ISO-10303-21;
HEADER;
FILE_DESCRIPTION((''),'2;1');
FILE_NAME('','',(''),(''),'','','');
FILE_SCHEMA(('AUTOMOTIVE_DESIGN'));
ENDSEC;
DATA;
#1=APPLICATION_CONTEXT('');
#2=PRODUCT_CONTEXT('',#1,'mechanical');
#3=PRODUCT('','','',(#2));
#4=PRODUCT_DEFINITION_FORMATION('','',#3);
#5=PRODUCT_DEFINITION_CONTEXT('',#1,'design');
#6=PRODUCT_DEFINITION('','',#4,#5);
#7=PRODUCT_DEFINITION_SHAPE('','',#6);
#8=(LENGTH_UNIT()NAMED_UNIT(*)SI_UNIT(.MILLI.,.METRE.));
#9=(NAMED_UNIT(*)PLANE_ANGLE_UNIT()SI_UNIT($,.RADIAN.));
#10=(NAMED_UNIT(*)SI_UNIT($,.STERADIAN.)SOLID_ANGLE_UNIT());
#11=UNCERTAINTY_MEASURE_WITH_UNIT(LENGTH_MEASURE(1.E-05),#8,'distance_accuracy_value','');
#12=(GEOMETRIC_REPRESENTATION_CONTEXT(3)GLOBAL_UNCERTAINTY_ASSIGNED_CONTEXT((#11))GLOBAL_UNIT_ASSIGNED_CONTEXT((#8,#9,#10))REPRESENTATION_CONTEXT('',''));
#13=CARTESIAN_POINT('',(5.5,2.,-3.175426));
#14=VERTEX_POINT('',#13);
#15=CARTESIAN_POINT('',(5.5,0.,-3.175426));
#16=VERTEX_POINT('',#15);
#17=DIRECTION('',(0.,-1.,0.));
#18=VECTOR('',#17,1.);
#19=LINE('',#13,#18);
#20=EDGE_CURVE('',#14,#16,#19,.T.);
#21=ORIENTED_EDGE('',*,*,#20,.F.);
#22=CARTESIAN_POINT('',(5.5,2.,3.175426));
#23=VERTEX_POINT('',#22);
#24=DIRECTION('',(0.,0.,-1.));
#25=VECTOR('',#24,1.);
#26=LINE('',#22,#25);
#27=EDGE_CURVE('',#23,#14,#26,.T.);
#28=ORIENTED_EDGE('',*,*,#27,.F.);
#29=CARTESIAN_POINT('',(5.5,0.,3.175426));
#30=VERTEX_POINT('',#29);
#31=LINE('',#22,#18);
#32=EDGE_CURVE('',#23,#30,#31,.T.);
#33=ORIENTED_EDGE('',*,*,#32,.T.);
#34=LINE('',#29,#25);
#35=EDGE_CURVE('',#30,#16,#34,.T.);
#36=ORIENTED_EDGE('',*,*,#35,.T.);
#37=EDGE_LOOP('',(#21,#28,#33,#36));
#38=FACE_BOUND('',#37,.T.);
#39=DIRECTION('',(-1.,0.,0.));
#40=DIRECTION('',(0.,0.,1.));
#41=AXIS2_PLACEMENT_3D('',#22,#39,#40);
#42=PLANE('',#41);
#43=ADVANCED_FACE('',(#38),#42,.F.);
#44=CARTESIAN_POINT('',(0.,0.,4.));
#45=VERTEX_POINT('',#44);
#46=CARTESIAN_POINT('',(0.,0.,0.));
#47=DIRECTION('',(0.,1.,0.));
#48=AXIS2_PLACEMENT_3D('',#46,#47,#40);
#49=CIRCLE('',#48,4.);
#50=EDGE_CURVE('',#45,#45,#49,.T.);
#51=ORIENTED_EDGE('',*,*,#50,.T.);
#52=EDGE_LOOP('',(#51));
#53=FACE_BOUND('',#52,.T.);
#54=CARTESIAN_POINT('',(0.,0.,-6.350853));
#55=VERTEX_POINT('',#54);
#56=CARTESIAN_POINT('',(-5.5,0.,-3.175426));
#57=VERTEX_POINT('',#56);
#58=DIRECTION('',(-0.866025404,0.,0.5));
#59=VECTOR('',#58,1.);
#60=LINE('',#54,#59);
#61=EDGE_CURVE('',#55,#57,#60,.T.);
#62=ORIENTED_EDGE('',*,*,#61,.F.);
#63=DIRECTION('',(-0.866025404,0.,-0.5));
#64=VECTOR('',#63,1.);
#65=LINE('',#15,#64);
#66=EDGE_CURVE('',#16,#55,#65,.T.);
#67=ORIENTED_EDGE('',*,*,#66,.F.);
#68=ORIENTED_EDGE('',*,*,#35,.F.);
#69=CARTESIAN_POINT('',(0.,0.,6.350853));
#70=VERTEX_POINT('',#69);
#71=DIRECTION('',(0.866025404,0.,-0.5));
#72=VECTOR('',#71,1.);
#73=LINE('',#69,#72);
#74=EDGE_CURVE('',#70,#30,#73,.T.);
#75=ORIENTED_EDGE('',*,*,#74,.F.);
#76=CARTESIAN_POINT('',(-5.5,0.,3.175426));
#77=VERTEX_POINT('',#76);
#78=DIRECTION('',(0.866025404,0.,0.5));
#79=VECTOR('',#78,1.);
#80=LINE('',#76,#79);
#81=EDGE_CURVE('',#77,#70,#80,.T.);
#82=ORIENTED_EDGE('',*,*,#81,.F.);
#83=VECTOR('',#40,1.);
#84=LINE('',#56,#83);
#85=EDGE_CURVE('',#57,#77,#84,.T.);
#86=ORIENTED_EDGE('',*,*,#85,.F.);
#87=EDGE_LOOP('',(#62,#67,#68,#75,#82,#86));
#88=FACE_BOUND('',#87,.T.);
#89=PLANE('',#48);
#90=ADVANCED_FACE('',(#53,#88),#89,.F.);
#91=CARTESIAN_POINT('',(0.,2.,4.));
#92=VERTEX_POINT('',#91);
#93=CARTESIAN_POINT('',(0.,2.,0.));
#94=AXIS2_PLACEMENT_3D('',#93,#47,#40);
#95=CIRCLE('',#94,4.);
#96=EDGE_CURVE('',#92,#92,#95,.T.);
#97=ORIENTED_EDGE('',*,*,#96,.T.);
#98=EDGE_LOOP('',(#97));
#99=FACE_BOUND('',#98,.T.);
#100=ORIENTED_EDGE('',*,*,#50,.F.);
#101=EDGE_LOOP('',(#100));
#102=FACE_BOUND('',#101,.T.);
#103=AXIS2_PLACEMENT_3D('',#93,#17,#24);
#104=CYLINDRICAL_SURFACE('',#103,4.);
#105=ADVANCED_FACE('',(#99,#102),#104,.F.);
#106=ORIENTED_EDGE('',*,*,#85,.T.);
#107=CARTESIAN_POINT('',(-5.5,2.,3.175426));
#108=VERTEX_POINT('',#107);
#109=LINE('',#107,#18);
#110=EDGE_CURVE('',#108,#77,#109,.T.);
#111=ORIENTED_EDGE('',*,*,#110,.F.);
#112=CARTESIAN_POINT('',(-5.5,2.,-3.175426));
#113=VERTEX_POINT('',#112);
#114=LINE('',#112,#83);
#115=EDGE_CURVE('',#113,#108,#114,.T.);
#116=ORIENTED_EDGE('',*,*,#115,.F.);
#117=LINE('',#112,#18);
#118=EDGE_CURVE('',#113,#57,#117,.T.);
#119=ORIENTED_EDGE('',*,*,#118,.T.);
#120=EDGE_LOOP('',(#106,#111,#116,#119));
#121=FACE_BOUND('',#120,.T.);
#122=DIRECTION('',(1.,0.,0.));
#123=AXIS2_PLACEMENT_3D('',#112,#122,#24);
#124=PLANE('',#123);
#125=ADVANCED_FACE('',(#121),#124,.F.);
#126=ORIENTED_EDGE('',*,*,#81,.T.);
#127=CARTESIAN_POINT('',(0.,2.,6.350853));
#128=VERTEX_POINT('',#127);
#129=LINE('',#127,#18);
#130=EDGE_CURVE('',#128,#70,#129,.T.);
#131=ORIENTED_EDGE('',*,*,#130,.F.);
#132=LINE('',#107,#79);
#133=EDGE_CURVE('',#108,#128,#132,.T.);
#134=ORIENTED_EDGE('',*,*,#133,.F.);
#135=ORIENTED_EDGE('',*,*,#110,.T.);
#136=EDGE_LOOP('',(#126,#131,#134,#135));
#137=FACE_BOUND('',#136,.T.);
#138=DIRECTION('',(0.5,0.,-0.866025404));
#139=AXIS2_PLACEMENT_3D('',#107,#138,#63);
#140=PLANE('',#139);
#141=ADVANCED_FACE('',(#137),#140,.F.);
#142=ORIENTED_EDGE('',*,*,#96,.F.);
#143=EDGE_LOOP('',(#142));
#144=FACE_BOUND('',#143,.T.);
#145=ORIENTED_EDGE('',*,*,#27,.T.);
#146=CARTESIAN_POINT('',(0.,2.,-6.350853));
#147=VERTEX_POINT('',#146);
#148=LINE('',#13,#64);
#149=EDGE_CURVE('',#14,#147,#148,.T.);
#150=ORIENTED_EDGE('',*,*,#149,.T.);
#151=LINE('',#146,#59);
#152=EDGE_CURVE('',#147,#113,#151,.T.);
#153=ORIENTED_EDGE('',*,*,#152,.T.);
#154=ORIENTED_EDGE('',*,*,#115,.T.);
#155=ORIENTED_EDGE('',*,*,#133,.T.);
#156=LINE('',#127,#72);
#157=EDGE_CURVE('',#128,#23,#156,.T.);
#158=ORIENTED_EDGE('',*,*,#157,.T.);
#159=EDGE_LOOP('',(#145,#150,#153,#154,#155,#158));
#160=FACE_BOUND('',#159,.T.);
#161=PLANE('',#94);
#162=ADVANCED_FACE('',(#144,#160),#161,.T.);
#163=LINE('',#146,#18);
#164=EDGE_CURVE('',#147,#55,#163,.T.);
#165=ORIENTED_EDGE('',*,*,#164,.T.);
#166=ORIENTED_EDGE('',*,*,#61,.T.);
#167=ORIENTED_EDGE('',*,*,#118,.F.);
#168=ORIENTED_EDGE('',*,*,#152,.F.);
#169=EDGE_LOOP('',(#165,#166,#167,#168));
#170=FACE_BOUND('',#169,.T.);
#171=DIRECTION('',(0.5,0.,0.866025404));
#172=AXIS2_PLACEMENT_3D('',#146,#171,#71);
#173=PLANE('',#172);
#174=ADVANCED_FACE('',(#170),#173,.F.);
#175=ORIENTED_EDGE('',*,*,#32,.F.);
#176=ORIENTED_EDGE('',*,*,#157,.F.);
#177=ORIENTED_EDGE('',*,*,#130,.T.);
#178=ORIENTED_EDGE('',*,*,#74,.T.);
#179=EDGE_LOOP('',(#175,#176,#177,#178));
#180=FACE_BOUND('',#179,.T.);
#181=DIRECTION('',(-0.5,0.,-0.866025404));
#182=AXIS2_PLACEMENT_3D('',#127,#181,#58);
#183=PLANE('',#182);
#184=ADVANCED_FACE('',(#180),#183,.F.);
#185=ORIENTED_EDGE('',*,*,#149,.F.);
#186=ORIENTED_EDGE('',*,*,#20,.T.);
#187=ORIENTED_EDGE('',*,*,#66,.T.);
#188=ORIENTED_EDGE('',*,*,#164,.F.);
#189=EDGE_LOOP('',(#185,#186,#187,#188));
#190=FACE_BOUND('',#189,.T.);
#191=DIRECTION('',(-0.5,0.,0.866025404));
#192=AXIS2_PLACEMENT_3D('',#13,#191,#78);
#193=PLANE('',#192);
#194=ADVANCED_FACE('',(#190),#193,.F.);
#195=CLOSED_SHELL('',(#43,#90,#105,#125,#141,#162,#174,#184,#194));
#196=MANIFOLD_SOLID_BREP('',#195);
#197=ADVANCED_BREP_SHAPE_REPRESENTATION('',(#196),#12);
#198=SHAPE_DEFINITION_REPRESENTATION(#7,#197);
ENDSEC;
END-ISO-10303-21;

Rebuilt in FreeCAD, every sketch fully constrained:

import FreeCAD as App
import Part
import Sketcher

V = App.Vector
Q = App.Units.Quantity


def add_polygon(sketch, points):
    """Adds a closed chain of lines whose ends are joined by coincident constraints."""
    first, n = sketch.GeometryCount, len(points)
    for a, b in zip(points, points[1:] + points[:1]):
        sketch.addGeometry(Part.LineSegment(App.Vector(*a, 0), App.Vector(*b, 0)), False)
    for i in range(n):
        sketch.addConstraint(Sketcher.Constraint("Coincident", first + i, 2, first + (i + 1) % n, 1))

doc = App.newDocument("Part")
params = doc.addObject("Spreadsheet::Sheet", "Params")
for row, (alias, value) in enumerate([
    ("sketch1_diameter", "8 mm"),
    ("pad1_length", "2 mm"),
], start=1):
    params.set(f"A{row}", alias)
    params.set(f"B{row}", "=" + value)
    params.setAlias(f"B{row}", alias)

body = doc.addObject("PartDesign::Body", "Body")

# Sketch on XZ plane
sketch1 = body.newObject("Sketcher::SketchObject", "Sketch")
sketch1.AttachmentSupport = (doc.getObject("XZ_Plane"), [""])
sketch1.MapMode = "FlatFace"
add_polygon(sketch1, [(0, -6.4), (-5.5, -3.2), (-5.5, 3.2), (0, 6.4), (5.5, 3.2), (5.5, -3.2)])  # lines 0-5
sketch1.addGeometry(Part.Circle(V(0, 0, 0), V(0, 0, 1), 4), False)  # 6
sketch1.addConstraint([
    Sketcher.Constraint("Vertical", 1),
    Sketcher.Constraint("Vertical", 4),
    Sketcher.Constraint("Coincident", 6, 3, -1, 1),
    Sketcher.Constraint("Symmetric", 0, 2, 3, 2, -1, 1),
    Sketcher.Constraint("Symmetric", 2, 2, 5, 2, -1, 1),
    Sketcher.Constraint("PointOnObject", 2, 2, -2),
    Sketcher.Constraint("Parallel", 2, 5),
    Sketcher.Constraint("Horizontal", 1, 2, 3, 2),
    Sketcher.Constraint("Diameter", 6, 8.0),
    Sketcher.Constraint("Angle", 0, Q("150 deg")),
    Sketcher.Constraint("DistanceX", 1, 2, 3, 2, 11.0),
    Sketcher.Constraint("DistanceY", 1, 1, 1, 2, 6.350853),
])
sketch1.setExpression("Constraints[14]", "Params.sketch1_diameter")
pad1 = body.newObject("PartDesign::Pad", "Pad")
pad1.Profile = sketch1
pad1.setExpression("Length", "Params.pad1_length")
pad1.Reversed = True

doc.recompute()
